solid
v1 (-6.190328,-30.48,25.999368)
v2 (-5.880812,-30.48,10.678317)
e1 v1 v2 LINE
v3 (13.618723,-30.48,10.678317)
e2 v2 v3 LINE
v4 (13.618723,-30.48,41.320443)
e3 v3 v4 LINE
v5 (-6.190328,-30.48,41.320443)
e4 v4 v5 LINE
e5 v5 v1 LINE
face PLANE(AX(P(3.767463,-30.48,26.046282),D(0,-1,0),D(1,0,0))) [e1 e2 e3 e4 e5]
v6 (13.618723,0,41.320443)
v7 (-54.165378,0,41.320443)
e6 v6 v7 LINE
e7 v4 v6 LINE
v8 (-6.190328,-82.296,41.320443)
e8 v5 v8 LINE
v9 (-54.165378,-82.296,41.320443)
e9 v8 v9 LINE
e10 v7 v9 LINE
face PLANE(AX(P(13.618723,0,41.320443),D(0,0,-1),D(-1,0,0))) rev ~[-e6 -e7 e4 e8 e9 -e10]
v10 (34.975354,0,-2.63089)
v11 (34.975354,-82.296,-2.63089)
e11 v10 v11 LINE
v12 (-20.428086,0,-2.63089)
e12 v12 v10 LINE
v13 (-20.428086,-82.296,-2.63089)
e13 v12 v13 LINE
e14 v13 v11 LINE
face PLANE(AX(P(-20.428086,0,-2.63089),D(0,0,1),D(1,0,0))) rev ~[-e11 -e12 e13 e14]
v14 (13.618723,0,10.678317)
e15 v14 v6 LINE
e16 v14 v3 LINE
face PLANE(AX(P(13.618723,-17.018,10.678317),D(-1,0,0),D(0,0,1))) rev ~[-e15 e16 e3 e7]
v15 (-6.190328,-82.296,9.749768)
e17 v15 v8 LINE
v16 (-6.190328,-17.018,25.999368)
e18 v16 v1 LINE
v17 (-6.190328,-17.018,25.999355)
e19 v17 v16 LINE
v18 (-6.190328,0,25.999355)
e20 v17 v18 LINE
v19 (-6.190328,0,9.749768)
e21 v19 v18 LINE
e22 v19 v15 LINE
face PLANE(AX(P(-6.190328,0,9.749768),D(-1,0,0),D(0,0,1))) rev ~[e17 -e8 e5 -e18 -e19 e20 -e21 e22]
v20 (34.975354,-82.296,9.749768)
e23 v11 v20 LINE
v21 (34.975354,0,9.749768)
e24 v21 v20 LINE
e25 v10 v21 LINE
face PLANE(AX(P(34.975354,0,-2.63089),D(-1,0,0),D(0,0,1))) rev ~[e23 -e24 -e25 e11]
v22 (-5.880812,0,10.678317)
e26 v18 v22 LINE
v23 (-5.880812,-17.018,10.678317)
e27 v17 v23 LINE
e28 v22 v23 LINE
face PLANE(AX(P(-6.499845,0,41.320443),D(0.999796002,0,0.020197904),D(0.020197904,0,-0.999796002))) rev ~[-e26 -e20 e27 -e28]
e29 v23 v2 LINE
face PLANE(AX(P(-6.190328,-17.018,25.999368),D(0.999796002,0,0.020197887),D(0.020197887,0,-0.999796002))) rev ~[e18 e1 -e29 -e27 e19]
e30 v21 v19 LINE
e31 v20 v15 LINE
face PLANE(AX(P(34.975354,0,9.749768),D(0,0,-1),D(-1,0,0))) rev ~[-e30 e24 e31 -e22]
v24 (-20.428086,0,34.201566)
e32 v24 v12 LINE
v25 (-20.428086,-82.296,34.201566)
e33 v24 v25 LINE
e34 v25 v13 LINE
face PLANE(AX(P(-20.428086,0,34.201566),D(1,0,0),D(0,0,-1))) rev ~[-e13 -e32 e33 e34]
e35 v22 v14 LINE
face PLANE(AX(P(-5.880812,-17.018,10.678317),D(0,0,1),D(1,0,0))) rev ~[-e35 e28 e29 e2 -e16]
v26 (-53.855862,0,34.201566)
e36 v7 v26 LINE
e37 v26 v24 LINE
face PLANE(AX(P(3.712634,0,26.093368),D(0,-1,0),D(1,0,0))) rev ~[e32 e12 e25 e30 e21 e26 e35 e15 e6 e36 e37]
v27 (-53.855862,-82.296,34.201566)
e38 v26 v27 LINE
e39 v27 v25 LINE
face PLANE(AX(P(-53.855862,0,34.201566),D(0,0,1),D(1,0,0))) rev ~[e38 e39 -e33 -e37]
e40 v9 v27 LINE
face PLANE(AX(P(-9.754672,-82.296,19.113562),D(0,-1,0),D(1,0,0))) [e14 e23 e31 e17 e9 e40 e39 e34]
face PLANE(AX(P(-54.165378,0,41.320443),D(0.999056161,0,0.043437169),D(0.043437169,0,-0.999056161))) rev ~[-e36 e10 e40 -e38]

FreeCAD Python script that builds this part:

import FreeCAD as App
import Part
import Sketcher
from FreeCAD import Vector
Q = App.Units.Quantity

doc = App.newDocument("Part")
body = doc.addObject("PartDesign::Body", "Body")

sketch1 = body.newObject("Sketcher::SketchObject", "Sketch")
sketch1.AttachmentSupport = (doc.getObject("XZ_Plane"), [""])
sketch1.MapMode = "FlatFace"
sketch1.addGeometry([
    Part.LineSegment(Vector(-54, 41, 0), Vector(-54, 34, 0)),
    Part.LineSegment(Vector(-54, 34, 0), Vector(-20, 34, 0)),
    Part.LineSegment(Vector(-20, 34, 0), Vector(-20, -3, 0)),
    Part.LineSegment(Vector(-20, -3, 0), Vector(35, -3, 0)),
    Part.LineSegment(Vector(35, -3, 0), Vector(35, 10, 0)),
    Part.LineSegment(Vector(35, 10, 0), Vector(-6, 10, 0)),
    Part.LineSegment(Vector(-6, 10, 0), Vector(-6, 41, 0)),
    Part.LineSegment(Vector(-6, 41, 0), Vector(-54, 41, 0)),
], False)
sketch1.addConstraint([
    Sketcher.Constraint("Coincident", 0, 2, 1, 1),
    Sketcher.Constraint("Coincident", 1, 2, 2, 1),
    Sketcher.Constraint("Coincident", 2, 2, 3, 1),
    Sketcher.Constraint("Coincident", 3, 2, 4, 1),
    Sketcher.Constraint("Coincident", 4, 2, 5, 1),
    Sketcher.Constraint("Coincident", 5, 2, 6, 1),
    Sketcher.Constraint("Coincident", 6, 2, 7, 1),
    Sketcher.Constraint("Coincident", 7, 2, 0, 1),
    Sketcher.Constraint("Horizontal", 1),
    Sketcher.Constraint("Vertical", 2),
    Sketcher.Constraint("Horizontal", 3),
    Sketcher.Constraint("Vertical", 4),
    Sketcher.Constraint("Horizontal", 5),
    Sketcher.Constraint("Vertical", 6),
    Sketcher.Constraint("Horizontal", 7),
    Sketcher.Constraint("DistanceX", 3, 1, 3, 2, Q("55.40344 mm")),
    Sketcher.Constraint("DistanceX", 7, 2, 7, 1, Q("47.97505 mm")),
    Sketcher.Constraint("DistanceY", 4, 2, 1, 2, Q("24.451798 mm")),
    Sketcher.Constraint("DistanceX", 1, 1, 1, 2, Q("33.427776 mm")),
    Sketcher.Constraint("DistanceX", 5, 2, 5, 1, Q("41.165682 mm")),
    Sketcher.Constraint("DistanceY", 2, 2, 2, 1, Q("36.832456 mm")),
    Sketcher.Constraint("DistanceY", 6, 1, 6, 2, Q("31.570675 mm")),
    Sketcher.Constraint("DistanceY", 2, 2, -1, 1, Q("2.63089 mm")),
    Sketcher.Constraint("DistanceX", 0, 2, -1, 1, Q("53.855862 mm")),
])
pad1 = body.newObject("PartDesign::Pad", "Pad")
pad1.Profile = sketch1
pad1.Length = Q("3.24 in")

sketch2 = body.newObject("Sketcher::SketchObject", "Sketch001")
sketch2.AttachmentSupport = (doc.getObject("XZ_Plane"), [""])
sketch2.MapMode = "FlatFace"
sketch2.addGeometry([
    Part.LineSegment(Vector(14, 41, 0), Vector(-6, 41, 0)),
    Part.LineSegment(Vector(-6, 41, 0), Vector(-6, 11, 0)),
    Part.LineSegment(Vector(-6, 11, 0), Vector(14, 11, 0)),
    Part.LineSegment(Vector(14, 11, 0), Vector(14, 41, 0)),
], False)
sketch2.addConstraint([
    Sketcher.Constraint("Coincident", 0, 2, 1, 1),
    Sketcher.Constraint("Coincident", 1, 2, 2, 1),
    Sketcher.Constraint("Coincident", 2, 2, 3, 1),
    Sketcher.Constraint("Coincident", 3, 2, 0, 1),
    Sketcher.Constraint("Horizontal", 0),
    Sketcher.Constraint("Horizontal", 2),
    Sketcher.Constraint("Vertical", 3),
    Sketcher.Constraint("DistanceX", 0, 2, 0, 1, Q("20.118568 mm")),
    Sketcher.Constraint("Distance", 1, Q("30.648378 mm")),
    Sketcher.Constraint("DistanceX", 2, 1, 2, 2, Q("19.499535 mm")),
    Sketcher.Constraint("DistanceX", 1, 2, -1, 1, Q("5.880812 mm")),
    Sketcher.Constraint("DistanceY", -1, 1, 0, 2, Q("41.320443 mm")),
])
pad2 = body.newObject("PartDesign::Pad", "Pad001")
pad2.Profile = sketch2
pad2.Length = Q("0.67 in")

sketch3 = body.newObject("Sketcher::SketchObject", "Sketch002")
sketch3.AttachmentSupport = (doc.getObject("XZ_Plane"), [""])
sketch3.MapMode = "FlatFace"
sketch3.AttachmentOffset = App.Placement(Vector(0, 0, 0.67 * 25.4), App.Rotation())
sketch3.addGeometry([
    Part.LineSegment(Vector(-6, 26, 0), Vector(-6, 11, 0)),
    Part.LineSegment(Vector(-6, 11, 0), Vector(14, 11, 0)),
    Part.LineSegment(Vector(14, 11, 0), Vector(14, 41, 0)),
    Part.LineSegment(Vector(14, 41, 0), Vector(-6, 41, 0)),
    Part.LineSegment(Vector(-6, 41, 0), Vector(-6, 26, 0)),
], False)
sketch3.addConstraint([
    Sketcher.Constraint("Coincident", 0, 2, 1, 1),
    Sketcher.Constraint("Coincident", 1, 2, 2, 1),
    Sketcher.Constraint("Coincident", 2, 2, 3, 1),
    Sketcher.Constraint("Coincident", 3, 2, 4, 1),
    Sketcher.Constraint("Coincident", 4, 2, 0, 1),
    Sketcher.Constraint("Horizontal", 1),
    Sketcher.Constraint("Vertical", 2),
    Sketcher.Constraint("Horizontal", 3),
    Sketcher.Constraint("Vertical", 4),
    Sketcher.Constraint("DistanceX", 3, 2, 3, 1, Q("19.809051 mm")),
    Sketcher.Constraint("DistanceX", 1, 1, 1, 2, Q("19.499535 mm")),
    Sketcher.Constraint("DistanceY", 2, 1, 2, 2, Q("30.642126 mm")),
    Sketcher.Constraint("DistanceY", 4, 2, 4, 1, Q("15.321075 mm")),
    Sketcher.Constraint("DistanceX", 0, 2, -1, 1, Q("5.880812 mm")),
    Sketcher.Constraint("DistanceY", -1, 1, 4, 2, Q("25.999368 mm")),
])
pad3 = body.newObject("PartDesign::Pad", "Pad002")
pad3.Profile = sketch3
pad3.Length = Q("0.53 in")

doc.recompute()
